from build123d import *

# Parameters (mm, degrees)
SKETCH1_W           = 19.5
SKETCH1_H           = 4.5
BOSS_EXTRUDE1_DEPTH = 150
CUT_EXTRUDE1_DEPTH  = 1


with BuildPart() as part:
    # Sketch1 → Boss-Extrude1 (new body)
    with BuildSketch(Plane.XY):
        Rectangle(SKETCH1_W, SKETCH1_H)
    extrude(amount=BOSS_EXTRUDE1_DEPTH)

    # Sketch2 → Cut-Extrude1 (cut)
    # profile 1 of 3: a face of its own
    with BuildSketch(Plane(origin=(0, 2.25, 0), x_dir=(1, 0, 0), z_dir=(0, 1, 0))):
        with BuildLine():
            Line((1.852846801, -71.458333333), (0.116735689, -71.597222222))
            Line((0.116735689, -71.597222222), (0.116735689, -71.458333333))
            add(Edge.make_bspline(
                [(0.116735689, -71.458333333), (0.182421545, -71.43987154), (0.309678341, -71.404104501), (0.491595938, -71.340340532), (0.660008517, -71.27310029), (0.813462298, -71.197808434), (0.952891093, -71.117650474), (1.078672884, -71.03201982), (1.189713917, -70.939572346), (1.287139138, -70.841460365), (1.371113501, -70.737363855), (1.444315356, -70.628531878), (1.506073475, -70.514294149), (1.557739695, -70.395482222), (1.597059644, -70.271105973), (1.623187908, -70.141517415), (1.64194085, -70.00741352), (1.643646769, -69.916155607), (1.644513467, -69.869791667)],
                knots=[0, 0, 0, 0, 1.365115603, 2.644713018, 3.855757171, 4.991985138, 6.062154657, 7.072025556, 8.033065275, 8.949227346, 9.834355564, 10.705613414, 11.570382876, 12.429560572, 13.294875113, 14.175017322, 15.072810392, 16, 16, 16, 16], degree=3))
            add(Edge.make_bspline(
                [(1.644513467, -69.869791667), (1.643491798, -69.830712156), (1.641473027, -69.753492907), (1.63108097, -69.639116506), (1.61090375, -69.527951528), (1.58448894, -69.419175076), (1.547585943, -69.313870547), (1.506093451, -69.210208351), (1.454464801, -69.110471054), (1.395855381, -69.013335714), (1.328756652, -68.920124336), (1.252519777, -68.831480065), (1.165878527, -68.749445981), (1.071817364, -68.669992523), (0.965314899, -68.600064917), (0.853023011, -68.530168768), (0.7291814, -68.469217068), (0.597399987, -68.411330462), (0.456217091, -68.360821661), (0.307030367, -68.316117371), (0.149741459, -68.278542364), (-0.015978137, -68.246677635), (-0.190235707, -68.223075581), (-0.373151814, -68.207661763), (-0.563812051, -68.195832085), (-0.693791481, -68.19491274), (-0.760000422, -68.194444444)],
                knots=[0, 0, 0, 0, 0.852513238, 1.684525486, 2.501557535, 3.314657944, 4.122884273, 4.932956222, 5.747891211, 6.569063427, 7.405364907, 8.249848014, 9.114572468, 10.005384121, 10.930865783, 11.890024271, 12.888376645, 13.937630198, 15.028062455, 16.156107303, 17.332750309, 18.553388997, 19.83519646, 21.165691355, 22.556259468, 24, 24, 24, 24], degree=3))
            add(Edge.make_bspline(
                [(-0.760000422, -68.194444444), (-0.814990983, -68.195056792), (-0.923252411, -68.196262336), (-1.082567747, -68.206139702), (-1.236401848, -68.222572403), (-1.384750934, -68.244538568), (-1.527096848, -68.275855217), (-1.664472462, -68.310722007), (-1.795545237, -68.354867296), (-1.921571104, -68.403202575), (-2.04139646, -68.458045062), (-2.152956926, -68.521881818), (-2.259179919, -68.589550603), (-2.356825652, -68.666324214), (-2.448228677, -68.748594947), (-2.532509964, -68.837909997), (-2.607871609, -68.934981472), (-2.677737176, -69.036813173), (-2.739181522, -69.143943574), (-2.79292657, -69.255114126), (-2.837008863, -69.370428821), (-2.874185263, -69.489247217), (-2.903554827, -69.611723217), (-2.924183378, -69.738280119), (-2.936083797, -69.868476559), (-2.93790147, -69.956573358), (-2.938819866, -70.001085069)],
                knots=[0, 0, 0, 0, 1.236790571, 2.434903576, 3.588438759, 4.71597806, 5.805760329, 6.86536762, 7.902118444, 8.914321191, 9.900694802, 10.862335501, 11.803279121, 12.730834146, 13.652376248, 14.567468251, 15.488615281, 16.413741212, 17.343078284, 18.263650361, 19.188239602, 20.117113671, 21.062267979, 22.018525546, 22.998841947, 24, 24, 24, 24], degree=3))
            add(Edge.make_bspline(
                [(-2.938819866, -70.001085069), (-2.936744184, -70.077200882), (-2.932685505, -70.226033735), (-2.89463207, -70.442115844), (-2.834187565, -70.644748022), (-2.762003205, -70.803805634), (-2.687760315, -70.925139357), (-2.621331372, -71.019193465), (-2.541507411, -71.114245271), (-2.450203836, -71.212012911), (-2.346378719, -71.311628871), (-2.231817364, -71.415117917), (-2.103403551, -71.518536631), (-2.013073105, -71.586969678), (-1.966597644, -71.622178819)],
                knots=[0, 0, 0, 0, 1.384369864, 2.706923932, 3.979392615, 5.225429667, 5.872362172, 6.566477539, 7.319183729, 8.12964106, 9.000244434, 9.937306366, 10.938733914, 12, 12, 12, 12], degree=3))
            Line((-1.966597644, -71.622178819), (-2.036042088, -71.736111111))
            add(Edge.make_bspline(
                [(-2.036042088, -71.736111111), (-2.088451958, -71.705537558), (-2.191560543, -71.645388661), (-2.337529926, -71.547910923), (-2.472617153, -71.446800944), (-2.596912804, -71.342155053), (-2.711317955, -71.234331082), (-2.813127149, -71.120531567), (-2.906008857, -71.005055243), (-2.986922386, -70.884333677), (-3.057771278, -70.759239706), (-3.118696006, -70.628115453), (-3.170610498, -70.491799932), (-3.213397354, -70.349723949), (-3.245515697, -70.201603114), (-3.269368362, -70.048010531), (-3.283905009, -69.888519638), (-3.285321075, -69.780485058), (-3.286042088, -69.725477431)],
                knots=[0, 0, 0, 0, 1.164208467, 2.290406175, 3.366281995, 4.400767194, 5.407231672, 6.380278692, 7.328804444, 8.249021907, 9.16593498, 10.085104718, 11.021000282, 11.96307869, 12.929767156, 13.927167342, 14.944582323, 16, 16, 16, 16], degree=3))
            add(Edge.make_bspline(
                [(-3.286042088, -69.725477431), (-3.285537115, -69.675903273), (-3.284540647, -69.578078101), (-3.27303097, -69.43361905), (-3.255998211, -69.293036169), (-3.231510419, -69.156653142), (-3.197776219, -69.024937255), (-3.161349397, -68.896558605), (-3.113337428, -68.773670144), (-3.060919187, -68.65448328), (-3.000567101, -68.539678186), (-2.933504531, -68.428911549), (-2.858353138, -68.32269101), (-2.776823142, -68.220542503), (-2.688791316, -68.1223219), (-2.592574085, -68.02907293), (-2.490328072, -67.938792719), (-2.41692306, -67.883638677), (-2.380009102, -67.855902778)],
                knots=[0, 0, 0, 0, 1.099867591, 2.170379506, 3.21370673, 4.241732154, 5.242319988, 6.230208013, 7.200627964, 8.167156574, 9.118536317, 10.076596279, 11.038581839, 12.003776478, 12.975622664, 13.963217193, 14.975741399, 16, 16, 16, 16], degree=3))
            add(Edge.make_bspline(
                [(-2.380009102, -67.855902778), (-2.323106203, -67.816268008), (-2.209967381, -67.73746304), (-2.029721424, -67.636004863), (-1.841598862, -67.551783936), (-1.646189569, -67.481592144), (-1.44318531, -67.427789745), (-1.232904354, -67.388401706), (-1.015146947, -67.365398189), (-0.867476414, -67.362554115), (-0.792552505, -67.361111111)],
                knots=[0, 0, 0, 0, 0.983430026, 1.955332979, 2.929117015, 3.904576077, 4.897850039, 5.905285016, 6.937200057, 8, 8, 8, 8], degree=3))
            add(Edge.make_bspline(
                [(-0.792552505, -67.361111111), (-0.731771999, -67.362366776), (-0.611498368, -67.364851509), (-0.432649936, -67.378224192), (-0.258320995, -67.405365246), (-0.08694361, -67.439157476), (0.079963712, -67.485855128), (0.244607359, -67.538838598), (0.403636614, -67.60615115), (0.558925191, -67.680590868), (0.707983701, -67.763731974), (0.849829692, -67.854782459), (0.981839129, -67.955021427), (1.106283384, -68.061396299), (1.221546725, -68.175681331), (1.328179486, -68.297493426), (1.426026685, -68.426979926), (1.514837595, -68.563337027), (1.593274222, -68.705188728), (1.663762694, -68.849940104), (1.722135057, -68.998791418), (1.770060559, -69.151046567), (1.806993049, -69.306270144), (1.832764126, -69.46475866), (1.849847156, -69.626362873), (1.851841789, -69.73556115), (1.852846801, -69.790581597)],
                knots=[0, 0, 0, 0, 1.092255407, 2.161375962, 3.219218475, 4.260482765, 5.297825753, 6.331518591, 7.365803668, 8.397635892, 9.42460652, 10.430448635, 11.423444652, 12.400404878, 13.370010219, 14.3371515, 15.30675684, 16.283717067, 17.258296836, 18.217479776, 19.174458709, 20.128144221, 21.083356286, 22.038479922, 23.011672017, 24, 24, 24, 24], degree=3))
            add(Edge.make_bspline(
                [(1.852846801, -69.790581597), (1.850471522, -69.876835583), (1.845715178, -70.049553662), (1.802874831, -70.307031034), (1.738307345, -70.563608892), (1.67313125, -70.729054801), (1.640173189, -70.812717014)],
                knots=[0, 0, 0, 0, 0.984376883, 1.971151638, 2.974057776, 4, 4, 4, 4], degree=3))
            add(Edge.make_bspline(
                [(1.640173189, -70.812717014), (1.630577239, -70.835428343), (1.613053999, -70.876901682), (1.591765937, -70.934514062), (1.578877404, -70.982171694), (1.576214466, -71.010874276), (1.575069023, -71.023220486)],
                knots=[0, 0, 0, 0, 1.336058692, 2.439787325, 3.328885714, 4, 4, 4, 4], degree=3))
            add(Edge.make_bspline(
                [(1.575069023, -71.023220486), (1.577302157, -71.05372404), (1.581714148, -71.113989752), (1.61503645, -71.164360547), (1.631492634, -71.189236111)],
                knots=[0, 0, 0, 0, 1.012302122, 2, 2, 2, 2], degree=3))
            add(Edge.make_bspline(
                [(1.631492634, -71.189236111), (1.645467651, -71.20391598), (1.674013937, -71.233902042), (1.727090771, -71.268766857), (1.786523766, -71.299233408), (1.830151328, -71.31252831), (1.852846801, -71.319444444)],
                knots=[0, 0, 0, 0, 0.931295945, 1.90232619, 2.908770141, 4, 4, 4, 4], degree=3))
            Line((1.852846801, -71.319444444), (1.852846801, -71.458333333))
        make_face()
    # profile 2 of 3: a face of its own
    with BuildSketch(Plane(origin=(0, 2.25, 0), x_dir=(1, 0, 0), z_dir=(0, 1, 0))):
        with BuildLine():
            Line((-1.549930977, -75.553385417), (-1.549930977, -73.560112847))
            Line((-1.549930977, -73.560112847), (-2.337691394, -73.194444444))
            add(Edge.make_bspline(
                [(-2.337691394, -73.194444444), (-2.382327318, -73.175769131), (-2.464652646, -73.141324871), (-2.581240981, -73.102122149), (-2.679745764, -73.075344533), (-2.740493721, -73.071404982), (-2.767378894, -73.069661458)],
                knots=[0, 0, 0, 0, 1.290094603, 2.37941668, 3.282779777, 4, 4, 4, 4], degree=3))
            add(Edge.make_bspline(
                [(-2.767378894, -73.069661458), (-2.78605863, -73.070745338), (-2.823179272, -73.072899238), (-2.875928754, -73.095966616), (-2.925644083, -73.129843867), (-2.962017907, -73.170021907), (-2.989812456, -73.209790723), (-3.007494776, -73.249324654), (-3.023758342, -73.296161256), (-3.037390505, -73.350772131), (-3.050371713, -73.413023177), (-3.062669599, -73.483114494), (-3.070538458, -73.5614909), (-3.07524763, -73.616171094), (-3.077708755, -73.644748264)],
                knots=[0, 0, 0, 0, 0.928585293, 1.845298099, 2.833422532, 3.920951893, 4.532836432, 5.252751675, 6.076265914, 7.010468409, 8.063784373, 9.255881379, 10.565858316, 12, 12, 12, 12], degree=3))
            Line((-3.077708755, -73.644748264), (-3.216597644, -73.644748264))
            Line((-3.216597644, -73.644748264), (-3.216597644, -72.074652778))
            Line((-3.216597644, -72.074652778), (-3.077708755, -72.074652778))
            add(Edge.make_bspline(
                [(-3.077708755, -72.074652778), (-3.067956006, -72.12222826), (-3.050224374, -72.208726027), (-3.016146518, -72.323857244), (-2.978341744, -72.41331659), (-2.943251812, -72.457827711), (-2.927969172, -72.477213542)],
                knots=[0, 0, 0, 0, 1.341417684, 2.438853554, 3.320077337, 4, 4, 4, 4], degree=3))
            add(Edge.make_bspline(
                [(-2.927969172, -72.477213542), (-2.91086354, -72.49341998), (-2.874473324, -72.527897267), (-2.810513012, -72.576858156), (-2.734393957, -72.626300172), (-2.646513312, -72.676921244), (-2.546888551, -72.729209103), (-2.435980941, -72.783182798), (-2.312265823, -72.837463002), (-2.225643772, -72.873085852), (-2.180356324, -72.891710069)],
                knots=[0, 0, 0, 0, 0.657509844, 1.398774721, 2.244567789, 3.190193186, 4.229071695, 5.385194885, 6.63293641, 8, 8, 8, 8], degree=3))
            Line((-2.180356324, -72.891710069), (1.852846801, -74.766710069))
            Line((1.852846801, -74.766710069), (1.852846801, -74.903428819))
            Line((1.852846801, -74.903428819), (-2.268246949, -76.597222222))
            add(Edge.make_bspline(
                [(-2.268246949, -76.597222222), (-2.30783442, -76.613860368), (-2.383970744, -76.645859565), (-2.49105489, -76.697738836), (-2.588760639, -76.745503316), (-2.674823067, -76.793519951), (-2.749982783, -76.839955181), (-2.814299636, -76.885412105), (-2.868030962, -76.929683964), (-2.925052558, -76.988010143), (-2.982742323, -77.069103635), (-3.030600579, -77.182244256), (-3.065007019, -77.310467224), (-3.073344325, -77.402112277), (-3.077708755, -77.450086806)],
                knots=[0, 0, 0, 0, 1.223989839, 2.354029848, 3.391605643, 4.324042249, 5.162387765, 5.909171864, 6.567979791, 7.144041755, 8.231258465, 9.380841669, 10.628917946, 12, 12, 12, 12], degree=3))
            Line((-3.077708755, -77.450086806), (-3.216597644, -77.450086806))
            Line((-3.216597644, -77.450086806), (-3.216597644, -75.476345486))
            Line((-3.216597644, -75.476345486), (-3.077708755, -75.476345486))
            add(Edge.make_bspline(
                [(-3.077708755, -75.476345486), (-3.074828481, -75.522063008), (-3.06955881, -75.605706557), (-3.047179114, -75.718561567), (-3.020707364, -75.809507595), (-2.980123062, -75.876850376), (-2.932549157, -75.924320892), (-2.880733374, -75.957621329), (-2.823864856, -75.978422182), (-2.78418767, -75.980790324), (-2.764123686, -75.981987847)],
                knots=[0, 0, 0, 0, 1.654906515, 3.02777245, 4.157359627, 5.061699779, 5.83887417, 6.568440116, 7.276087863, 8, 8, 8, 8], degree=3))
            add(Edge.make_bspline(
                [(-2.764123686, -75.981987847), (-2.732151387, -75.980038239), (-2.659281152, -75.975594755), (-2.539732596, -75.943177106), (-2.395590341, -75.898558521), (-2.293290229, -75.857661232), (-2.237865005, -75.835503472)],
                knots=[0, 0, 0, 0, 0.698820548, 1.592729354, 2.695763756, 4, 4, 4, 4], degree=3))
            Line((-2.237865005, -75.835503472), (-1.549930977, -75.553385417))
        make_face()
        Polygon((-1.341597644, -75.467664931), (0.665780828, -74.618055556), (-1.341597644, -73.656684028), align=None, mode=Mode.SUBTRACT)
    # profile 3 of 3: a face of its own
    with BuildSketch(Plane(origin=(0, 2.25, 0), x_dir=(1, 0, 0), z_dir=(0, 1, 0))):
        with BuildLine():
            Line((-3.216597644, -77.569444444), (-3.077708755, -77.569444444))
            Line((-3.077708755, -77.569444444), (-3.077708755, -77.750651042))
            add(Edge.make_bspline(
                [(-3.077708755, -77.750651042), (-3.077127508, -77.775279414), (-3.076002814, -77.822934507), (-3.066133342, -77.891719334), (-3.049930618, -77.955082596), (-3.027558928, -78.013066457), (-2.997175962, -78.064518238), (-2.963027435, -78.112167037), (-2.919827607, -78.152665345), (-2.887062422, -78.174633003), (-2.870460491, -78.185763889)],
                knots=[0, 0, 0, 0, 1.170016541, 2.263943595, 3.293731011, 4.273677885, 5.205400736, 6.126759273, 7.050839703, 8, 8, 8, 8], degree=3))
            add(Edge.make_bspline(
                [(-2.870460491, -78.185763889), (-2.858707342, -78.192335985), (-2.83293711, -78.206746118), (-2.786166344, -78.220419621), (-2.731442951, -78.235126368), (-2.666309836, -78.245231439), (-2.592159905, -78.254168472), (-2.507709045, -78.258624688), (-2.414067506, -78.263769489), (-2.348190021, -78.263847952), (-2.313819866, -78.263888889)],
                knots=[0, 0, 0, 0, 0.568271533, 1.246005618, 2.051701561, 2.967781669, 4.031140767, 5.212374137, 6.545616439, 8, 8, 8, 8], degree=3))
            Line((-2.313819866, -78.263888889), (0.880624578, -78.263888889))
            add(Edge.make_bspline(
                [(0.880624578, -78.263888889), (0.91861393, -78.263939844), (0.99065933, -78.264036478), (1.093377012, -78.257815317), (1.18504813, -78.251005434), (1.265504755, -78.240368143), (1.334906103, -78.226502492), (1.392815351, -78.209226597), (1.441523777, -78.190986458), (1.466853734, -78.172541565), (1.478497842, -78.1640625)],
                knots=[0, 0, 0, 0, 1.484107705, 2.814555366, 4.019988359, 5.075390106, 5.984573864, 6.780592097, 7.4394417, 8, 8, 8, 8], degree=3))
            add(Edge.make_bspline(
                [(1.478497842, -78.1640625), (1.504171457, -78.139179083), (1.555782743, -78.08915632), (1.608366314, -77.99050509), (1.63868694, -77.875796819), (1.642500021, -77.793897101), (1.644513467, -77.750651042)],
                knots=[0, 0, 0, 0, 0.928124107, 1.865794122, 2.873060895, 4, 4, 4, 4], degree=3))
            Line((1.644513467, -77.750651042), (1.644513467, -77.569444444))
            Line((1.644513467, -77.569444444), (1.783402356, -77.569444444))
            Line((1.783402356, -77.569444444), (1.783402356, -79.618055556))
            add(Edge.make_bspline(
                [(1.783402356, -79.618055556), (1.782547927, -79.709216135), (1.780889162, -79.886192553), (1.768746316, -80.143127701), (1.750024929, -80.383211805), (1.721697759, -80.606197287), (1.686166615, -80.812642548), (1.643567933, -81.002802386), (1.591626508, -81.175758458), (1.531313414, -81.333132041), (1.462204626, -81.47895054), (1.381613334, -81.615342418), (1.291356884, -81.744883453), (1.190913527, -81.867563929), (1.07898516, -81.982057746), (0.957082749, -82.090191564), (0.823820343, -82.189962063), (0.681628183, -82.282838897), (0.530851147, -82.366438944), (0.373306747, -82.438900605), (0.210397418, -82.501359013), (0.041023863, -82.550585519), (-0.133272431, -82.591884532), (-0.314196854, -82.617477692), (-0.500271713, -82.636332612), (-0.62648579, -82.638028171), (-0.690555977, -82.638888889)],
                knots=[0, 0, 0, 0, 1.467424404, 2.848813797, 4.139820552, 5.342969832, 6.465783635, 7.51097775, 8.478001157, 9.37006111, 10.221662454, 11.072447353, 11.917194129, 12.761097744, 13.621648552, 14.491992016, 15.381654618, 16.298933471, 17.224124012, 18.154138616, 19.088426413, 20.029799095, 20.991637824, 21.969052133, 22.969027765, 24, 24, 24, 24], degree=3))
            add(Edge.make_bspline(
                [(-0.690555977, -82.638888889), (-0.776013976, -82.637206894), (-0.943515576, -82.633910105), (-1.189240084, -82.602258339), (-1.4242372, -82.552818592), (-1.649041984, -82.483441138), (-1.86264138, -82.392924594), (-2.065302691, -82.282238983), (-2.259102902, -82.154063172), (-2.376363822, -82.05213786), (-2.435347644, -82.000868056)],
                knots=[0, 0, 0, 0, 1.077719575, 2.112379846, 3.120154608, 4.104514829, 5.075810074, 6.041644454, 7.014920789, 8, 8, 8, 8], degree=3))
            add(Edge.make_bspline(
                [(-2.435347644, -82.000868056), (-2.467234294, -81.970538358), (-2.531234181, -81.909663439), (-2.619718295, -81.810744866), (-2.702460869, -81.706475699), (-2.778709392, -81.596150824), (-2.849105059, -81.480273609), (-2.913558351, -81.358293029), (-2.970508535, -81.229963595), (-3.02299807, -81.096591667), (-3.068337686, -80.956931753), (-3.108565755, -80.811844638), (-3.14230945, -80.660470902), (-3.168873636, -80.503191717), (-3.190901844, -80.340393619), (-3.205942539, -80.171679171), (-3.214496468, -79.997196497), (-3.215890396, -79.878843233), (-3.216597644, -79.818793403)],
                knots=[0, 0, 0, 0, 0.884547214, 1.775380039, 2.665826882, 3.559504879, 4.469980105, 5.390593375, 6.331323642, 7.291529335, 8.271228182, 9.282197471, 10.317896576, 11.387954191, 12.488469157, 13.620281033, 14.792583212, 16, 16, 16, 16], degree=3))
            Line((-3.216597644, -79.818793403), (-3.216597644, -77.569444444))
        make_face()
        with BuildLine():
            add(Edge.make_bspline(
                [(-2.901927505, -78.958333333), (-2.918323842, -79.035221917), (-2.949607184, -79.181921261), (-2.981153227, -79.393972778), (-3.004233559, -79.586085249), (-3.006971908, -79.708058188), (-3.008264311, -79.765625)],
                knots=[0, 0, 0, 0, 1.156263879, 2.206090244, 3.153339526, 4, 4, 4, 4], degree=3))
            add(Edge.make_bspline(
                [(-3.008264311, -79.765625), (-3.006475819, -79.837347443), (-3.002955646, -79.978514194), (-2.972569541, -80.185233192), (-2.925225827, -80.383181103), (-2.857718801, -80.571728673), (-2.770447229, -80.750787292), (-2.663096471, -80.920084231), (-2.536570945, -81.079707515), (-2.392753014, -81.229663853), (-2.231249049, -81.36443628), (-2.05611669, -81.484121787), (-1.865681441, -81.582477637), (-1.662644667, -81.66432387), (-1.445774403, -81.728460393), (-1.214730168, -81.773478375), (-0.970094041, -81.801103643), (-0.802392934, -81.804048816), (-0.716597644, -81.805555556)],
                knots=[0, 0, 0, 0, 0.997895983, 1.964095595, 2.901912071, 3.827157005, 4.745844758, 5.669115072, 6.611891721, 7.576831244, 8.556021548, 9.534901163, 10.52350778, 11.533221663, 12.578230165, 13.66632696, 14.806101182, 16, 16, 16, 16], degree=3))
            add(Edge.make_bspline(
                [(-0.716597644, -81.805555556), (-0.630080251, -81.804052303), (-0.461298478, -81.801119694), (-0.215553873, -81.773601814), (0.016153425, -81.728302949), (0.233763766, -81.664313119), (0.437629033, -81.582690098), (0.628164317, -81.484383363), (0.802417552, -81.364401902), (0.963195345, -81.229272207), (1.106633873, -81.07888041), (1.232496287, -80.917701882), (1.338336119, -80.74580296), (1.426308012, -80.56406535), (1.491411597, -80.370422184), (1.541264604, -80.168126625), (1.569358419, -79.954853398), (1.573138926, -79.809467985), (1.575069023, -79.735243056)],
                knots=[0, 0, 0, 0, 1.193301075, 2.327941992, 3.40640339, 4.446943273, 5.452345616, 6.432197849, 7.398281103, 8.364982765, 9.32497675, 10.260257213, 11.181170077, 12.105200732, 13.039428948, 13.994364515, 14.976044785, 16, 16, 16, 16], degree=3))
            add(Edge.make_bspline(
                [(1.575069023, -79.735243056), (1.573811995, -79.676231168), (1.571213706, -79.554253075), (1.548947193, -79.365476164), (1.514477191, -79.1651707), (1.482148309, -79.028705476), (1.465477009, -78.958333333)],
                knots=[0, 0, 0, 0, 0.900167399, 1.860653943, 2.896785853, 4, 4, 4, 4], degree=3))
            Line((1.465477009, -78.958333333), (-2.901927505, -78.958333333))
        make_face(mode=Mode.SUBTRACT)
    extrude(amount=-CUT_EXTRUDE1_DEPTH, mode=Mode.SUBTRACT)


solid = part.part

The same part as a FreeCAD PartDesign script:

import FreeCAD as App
import Part
import Sketcher

V = App.Vector
Q = App.Units.Quantity


def add_polygon(sketch, points):
    """Adds a closed chain of lines whose ends are joined by coincident constraints."""
    first, n = sketch.GeometryCount, len(points)
    for a, b in zip(points, points[1:] + points[:1]):
        sketch.addGeometry(Part.LineSegment(App.Vector(*a, 0), App.Vector(*b, 0)), False)
    for i in range(n):
        sketch.addConstraint(Sketcher.Constraint("Coincident", first + i, 2, first + (i + 1) % n, 1))

doc = App.newDocument("Part")
body = doc.addObject("PartDesign::Body", "Body")

# Sketch on XY plane
sketch1 = doc.addObject("Sketcher::SketchObject", "Sketch")
body.addObject(sketch1)
sketch1.AttachmentSupport = (doc.XY_Plane, [""])
sketch1.MapMode = "FlatFace"
add_polygon(sketch1, [(-9.8, 2.2), (-9.8, -2.2), (9.8, -2.2), (9.8, 2.2)])  # lines 0-3
sketch1.addConstraint([
    Sketcher.Constraint("Vertical", 0),
    Sketcher.Constraint("Horizontal", 1),
    Sketcher.Constraint("Vertical", 2),
    Sketcher.Constraint("Horizontal", 3),
    Sketcher.Constraint("Symmetric", 0, 2, 2, 2, -1, 1),
    Sketcher.Constraint("DistanceX", 1, 1, 1, 2, Q("19.5 mm")),
    Sketcher.Constraint("DistanceY", 0, 2, 0, 1, Q("4.5 mm")),
])
pad1 = doc.addObject("PartDesign::Pad", "Pad")
body.addObject(pad1)
pad1.Profile = sketch1
pad1.Length = 150

# Sketch on XZ plane
sketch2 = doc.addObject("Sketcher::SketchObject", "Sketch001")
body.addObject(sketch2)
sketch2.AttachmentSupport = (doc.XZ_Plane, [""])
sketch2.MapMode = "FlatFace"
sketch2.AttachmentOffset = App.Placement(V(0, 0, -2.25), App.Rotation())
sketch2.addGeometry(Part.LineSegment(V(0.116736, 71.597222, 0), V(1.852847, 71.458333, 0)), False)  # 0
sketch2.addGeometry(Part.LineSegment(V(1.852847, 71.458333, 0), V(1.852847, 71.319444, 0)), False)  # 1
sketch2.addGeometry(Part.BSplineCurve([V(1.631493, 71.189236, 0), V(1.645468, 71.203916, 0), V(1.674014, 71.233902, 0), V(1.727091, 71.268767, 0), V(1.786524, 71.299233, 0), V(1.830151, 71.312528, 0), V(1.852847, 71.319444, 0)], [4, 1, 1, 1, 4], [0, 0.931295945, 1.90232619, 2.908770141, 4], False, 3, [1, 1, 1, 1, 1, 1, 1], False), False)  # 2
sketch2.addGeometry(Part.BSplineCurve([V(1.575069, 71.02322, 0), V(1.577302, 71.053724, 0), V(1.581714, 71.11399, 0), V(1.615036, 71.164361, 0), V(1.631493, 71.189236, 0)], [4, 1, 4], [0, 1.012302122, 2], False, 3, [1, 1, 1, 1, 1], False), False)  # 3
sketch2.addGeometry(Part.BSplineCurve([V(1.640173, 70.812717, 0), V(1.630577, 70.835428, 0), V(1.613054, 70.876902, 0), V(1.591766, 70.934514, 0), V(1.578877, 70.982172, 0), V(1.576214, 71.010874, 0), V(1.575069, 71.02322, 0)], [4, 1, 1, 1, 4], [0, 1.336058692, 2.439787325, 3.328885714, 4], False, 3, [1, 1, 1, 1, 1, 1, 1], False), False)  # 4
sketch2.addGeometry(Part.BSplineCurve([V(1.852847, 69.790582, 0), V(1.850472, 69.876836, 0), V(1.845715, 70.049554, 0), V(1.802875, 70.307031, 0), V(1.738307, 70.563609, 0), V(1.673131, 70.729055, 0), V(1.640173, 70.812717, 0)], [4, 1, 1, 1, 4], [0, 0.984376883, 1.971151638, 2.974057776, 4], False, 3, [1, 1, 1, 1, 1, 1, 1], False), False)  # 5
sketch2.addGeometry(Part.BSplineCurve([V(-0.792553, 67.361111, 0), V(-0.731772, 67.362367, 0), V(-0.611498, 67.364852, 0), V(-0.43265, 67.378224, 0), V(-0.258321, 67.405365, 0), V(-0.086944, 67.439157, 0), V(0.079964, 67.485855, 0), V(0.244607, 67.538839, 0), V(0.403637, 67.606151, 0), V(0.558925, 67.680591, 0), V(0.707984, 67.763732, 0), V(0.84983, 67.854782, 0), V(0.981839, 67.955021, 0), V(1.106283, 68.061396, 0), V(1.221547, 68.175681, 0), V(1.328179, 68.297493, 0), V(1.426027, 68.42698, 0), V(1.514838, 68.563337, 0), V(1.593274, 68.705189, 0), V(1.663763, 68.84994, 0), V(1.722135, 68.998791, 0), V(1.770061, 69.151047, 0), V(1.806993, 69.30627, 0), V(1.832764, 69.464759, 0), V(1.849847, 69.626363, 0), V(1.851842, 69.735561, 0), V(1.852847, 69.790582, 0)], [4, 1, 1, 1, 1, 1, 1, 1, 1, 1, 1, 1, 1, 1, 1, 1, 1, 1, 1, 1, 1, 1, 1, 1, 4], [0, 1.092255407, 2.161375962, 3.219218475, 4.260482765, 5.297825753, 6.331518591, 7.365803668, 8.397635892, 9.42460652, 10.430448635, 11.423444652, 12.400404878, 13.370010219, 14.3371515, 15.30675684, 16.283717067, 17.258296836, 18.217479776, 19.174458709, 20.128144221, 21.083356286, 22.038479922, 23.011672017, 24], False, 3, [1, 1, 1, 1, 1, 1, 1, 1, 1, 1, 1, 1, 1, 1, 1, 1, 1, 1, 1, 1, 1, 1, 1, 1, 1, 1, 1], False), False)  # 6
sketch2.addGeometry(Part.BSplineCurve([V(-2.380009, 67.855903, 0), V(-2.323106, 67.816268, 0), V(-2.209967, 67.737463, 0), V(-2.029721, 67.636005, 0), V(-1.841599, 67.551784, 0), V(-1.64619, 67.481592, 0), V(-1.443185, 67.42779, 0), V(-1.232904, 67.388402, 0), V(-1.015147, 67.365398, 0), V(-0.867476, 67.362554, 0), V(-0.792553, 67.361111, 0)], [4, 1, 1, 1, 1, 1, 1, 1, 4], [0, 0.983430026, 1.955332979, 2.929117015, 3.904576077, 4.897850039, 5.905285016, 6.937200057, 8], False, 3, [1, 1, 1, 1, 1, 1, 1, 1, 1, 1, 1], False), False)  # 7
sketch2.addGeometry(Part.BSplineCurve([V(-3.286042, 69.725477, 0), V(-3.285537, 69.675903, 0), V(-3.284541, 69.578078, 0), V(-3.273031, 69.433619, 0), V(-3.255998, 69.293036, 0), V(-3.23151, 69.156653, 0), V(-3.197776, 69.024937, 0), V(-3.161349, 68.896559, 0), V(-3.113337, 68.77367, 0), V(-3.060919, 68.654483, 0), V(-3.000567, 68.539678, 0), V(-2.933505, 68.428912, 0), V(-2.858353, 68.322691, 0), V(-2.776823, 68.220543, 0), V(-2.688791, 68.122322, 0), V(-2.592574, 68.029073, 0), V(-2.490328, 67.938793, 0), V(-2.416923, 67.883639, 0), V(-2.380009, 67.855903, 0)], [4, 1, 1, 1, 1, 1, 1, 1, 1, 1, 1, 1, 1, 1, 1, 1, 4], [0, 1.099867591, 2.170379506, 3.21370673, 4.241732154, 5.242319988, 6.230208013, 7.200627964, 8.167156574, 9.118536317, 10.076596279, 11.038581839, 12.003776478, 12.975622664, 13.963217193, 14.975741399, 16], False, 3, [1, 1, 1, 1, 1, 1, 1, 1, 1, 1, 1, 1, 1, 1, 1, 1, 1, 1, 1], False), False)  # 8
sketch2.addGeometry(Part.BSplineCurve([V(-2.036042, 71.736111, 0), V(-2.088452, 71.705538, 0), V(-2.191561, 71.645389, 0), V(-2.33753, 71.547911, 0), V(-2.472617, 71.446801, 0), V(-2.596913, 71.342155, 0), V(-2.711318, 71.234331, 0), V(-2.813127, 71.120532, 0), V(-2.906009, 71.005055, 0), V(-2.986922, 70.884334, 0), V(-3.057771, 70.75924, 0), V(-3.118696, 70.628115, 0), V(-3.17061, 70.4918, 0), V(-3.213397, 70.349724, 0), V(-3.245516, 70.201603, 0), V(-3.269368, 70.048011, 0), V(-3.283905, 69.88852, 0), V(-3.285321, 69.780485, 0), V(-3.286042, 69.725477, 0)], [4, 1, 1, 1, 1, 1, 1, 1, 1, 1, 1, 1, 1, 1, 1, 1, 4], [0, 1.164208467, 2.290406175, 3.366281995, 4.400767194, 5.407231672, 6.380278692, 7.328804444, 8.249021907, 9.16593498, 10.085104718, 11.021000282, 11.96307869, 12.929767156, 13.927167342, 14.944582323, 16], False, 3, [1, 1, 1, 1, 1, 1, 1, 1, 1, 1, 1, 1, 1, 1, 1, 1, 1, 1, 1], False), False)  # 9
sketch2.addGeometry(Part.LineSegment(V(-2.036042, 71.736111, 0), V(-1.966598, 71.622179, 0)), False)  # 10
sketch2.addGeometry(Part.BSplineCurve([V(-2.93882, 70.001085, 0), V(-2.936744, 70.077201, 0), V(-2.932686, 70.226034, 0), V(-2.894632, 70.442116, 0), V(-2.834188, 70.644748, 0), V(-2.762003, 70.803806, 0), V(-2.68776, 70.925139, 0), V(-2.621331, 71.019193, 0), V(-2.541507, 71.114245, 0), V(-2.450204, 71.212013, 0), V(-2.346379, 71.311629, 0), V(-2.231817, 71.415118, 0), V(-2.103404, 71.518537, 0), V(-2.013073, 71.58697, 0), V(-1.966598, 71.622179, 0)], [4, 1, 1, 1, 1, 1, 1, 1, 1, 1, 1, 1, 4], [0, 1.384369864, 2.706923932, 3.979392615, 5.225429667, 5.872362172, 6.566477539, 7.319183729, 8.12964106, 9.000244434, 9.937306366, 10.938733914, 12], False, 3, [1, 1, 1, 1, 1, 1, 1, 1, 1, 1, 1, 1, 1, 1, 1], False), False)  # 11
sketch2.addGeometry(Part.BSplineCurve([V(-0.76, 68.194444, 0), V(-0.814991, 68.195057, 0), V(-0.923252, 68.196262, 0), V(-1.082568, 68.20614, 0), V(-1.236402, 68.222572, 0), V(-1.384751, 68.244539, 0), V(-1.527097, 68.275855, 0), V(-1.664472, 68.310722, 0), V(-1.795545, 68.354867, 0), V(-1.921571, 68.403203, 0), V(-2.041396, 68.458045, 0), V(-2.152957, 68.521882, 0), V(-2.25918, 68.589551, 0), V(-2.356826, 68.666324, 0), V(-2.448229, 68.748595, 0), V(-2.53251, 68.83791, 0), V(-2.607872, 68.934981, 0), V(-2.677737, 69.036813, 0), V(-2.739182, 69.143944, 0), V(-2.792927, 69.255114, 0), V(-2.837009, 69.370429, 0), V(-2.874185, 69.489247, 0), V(-2.903555, 69.611723, 0), V(-2.924183, 69.73828, 0), V(-2.936084, 69.868477, 0), V(-2.937901, 69.956573, 0), V(-2.93882, 70.001085, 0)], [4, 1, 1, 1, 1, 1, 1, 1, 1, 1, 1, 1, 1, 1, 1, 1, 1, 1, 1, 1, 1, 1, 1, 1, 4], [0, 1.236790571, 2.434903576, 3.588438759, 4.71597806, 5.805760329, 6.86536762, 7.902118444, 8.914321191, 9.900694802, 10.862335501, 11.803279121, 12.730834146, 13.652376248, 14.567468251, 15.488615281, 16.413741212, 17.343078284, 18.263650361, 19.188239602, 20.117113671, 21.062267979, 22.018525546, 22.998841947, 24], False, 3, [1, 1, 1, 1, 1, 1, 1, 1, 1, 1, 1, 1, 1, 1, 1, 1, 1, 1, 1, 1, 1, 1, 1, 1, 1, 1, 1], False), False)  # 12
sketch2.addGeometry(Part.BSplineCurve([V(1.644513, 69.869792, 0), V(1.643492, 69.830712, 0), V(1.641473, 69.753493, 0), V(1.631081, 69.639117, 0), V(1.610904, 69.527952, 0), V(1.584489, 69.419175, 0), V(1.547586, 69.313871, 0), V(1.506093, 69.210208, 0), V(1.454465, 69.110471, 0), V(1.395855, 69.013336, 0), V(1.328757, 68.920124, 0), V(1.25252, 68.83148, 0), V(1.165879, 68.749446, 0), V(1.071817, 68.669993, 0), V(0.965315, 68.600065, 0), V(0.853023, 68.530169, 0), V(0.729181, 68.469217, 0), V(0.5974, 68.41133, 0), V(0.456217, 68.360822, 0), V(0.30703, 68.316117, 0), V(0.149741, 68.278542, 0), V(-0.015978, 68.246678, 0), V(-0.190236, 68.223076, 0), V(-0.373152, 68.207662, 0), V(-0.563812, 68.195832, 0), V(-0.693791, 68.194913, 0), V(-0.76, 68.194444, 0)], [4, 1, 1, 1, 1, 1, 1, 1, 1, 1, 1, 1, 1, 1, 1, 1, 1, 1, 1, 1, 1, 1, 1, 1, 4], [0, 0.852513238, 1.684525486, 2.501557535, 3.314657944, 4.122884273, 4.932956222, 5.747891211, 6.569063427, 7.405364907, 8.249848014, 9.114572468, 10.005384121, 10.930865783, 11.890024271, 12.888376645, 13.937630198, 15.028062455, 16.156107303, 17.332750309, 18.553388997, 19.83519646, 21.165691355, 22.556259468, 24], False, 3, [1, 1, 1, 1, 1, 1, 1, 1, 1, 1, 1, 1, 1, 1, 1, 1, 1, 1, 1, 1, 1, 1, 1, 1, 1, 1, 1], False), False)  # 13
sketch2.addGeometry(Part.BSplineCurve([V(0.116736, 71.458333, 0), V(0.182422, 71.439872, 0), V(0.309678, 71.404105, 0), V(0.491596, 71.340341, 0), V(0.660009, 71.2731, 0), V(0.813462, 71.197808, 0), V(0.952891, 71.11765, 0), V(1.078673, 71.03202, 0), V(1.189714, 70.939572, 0), V(1.287139, 70.84146, 0), V(1.371114, 70.737364, 0), V(1.444315, 70.628532, 0), V(1.506073, 70.514294, 0), V(1.55774, 70.395482, 0), V(1.59706, 70.271106, 0), V(1.623188, 70.141517, 0), V(1.641941, 70.007414, 0), V(1.643647, 69.916156, 0), V(1.644513, 69.869792, 0)], [4, 1, 1, 1, 1, 1, 1, 1, 1, 1, 1, 1, 1, 1, 1, 1, 4], [0, 1.365115603, 2.644713018, 3.855757171, 4.991985138, 6.062154657, 7.072025556, 8.033065275, 8.949227346, 9.834355564, 10.705613414, 11.570382876, 12.429560572, 13.294875113, 14.175017322, 15.072810392, 16], False, 3, [1, 1, 1, 1, 1, 1, 1, 1, 1, 1, 1, 1, 1, 1, 1, 1, 1, 1, 1], False), False)  # 14
sketch2.addGeometry(Part.LineSegment(V(0.116736, 71.458333, 0), V(0.116736, 71.597222, 0)), False)  # 15
sketch2.addGeometry(Part.LineSegment(V(-1.549931, 73.560113, 0), V(-1.549931, 75.553385, 0)), False)  # 16
sketch2.addGeometry(Part.LineSegment(V(-1.549931, 75.553385, 0), V(-2.237865, 75.835503, 0)), False)  # 17
sketch2.addGeometry(Part.BSplineCurve([V(-2.764124, 75.981988, 0), V(-2.732151, 75.980038, 0), V(-2.659281, 75.975595, 0), V(-2.539733, 75.943177, 0), V(-2.39559, 75.898559, 0), V(-2.29329, 75.857661, 0), V(-2.237865, 75.835503, 0)], [4, 1, 1, 1, 4], [0, 0.698820548, 1.592729354, 2.695763756, 4], False, 3, [1, 1, 1, 1, 1, 1, 1], False), False)  # 18
sketch2.addGeometry(Part.BSplineCurve([V(-3.077709, 75.476345, 0), V(-3.074828, 75.522063, 0), V(-3.069559, 75.605707, 0), V(-3.047179, 75.718562, 0), V(-3.020707, 75.809508, 0), V(-2.980123, 75.87685, 0), V(-2.932549, 75.924321, 0), V(-2.880733, 75.957621, 0), V(-2.823865, 75.978422, 0), V(-2.784188, 75.98079, 0), V(-2.764124, 75.981988, 0)], [4, 1, 1, 1, 1, 1, 1, 1, 4], [0, 1.654906515, 3.02777245, 4.157359627, 5.061699779, 5.83887417, 6.568440116, 7.276087863, 8], False, 3, [1, 1, 1, 1, 1, 1, 1, 1, 1, 1, 1], False), False)  # 19
sketch2.addGeometry(Part.LineSegment(V(-3.077709, 75.476345, 0), V(-3.216598, 75.476345, 0)), False)  # 20
sketch2.addGeometry(Part.LineSegment(V(-3.216598, 75.476345, 0), V(-3.216598, 77.450087, 0)), False)  # 21
sketch2.addGeometry(Part.LineSegment(V(-3.216598, 77.450087, 0), V(-3.077709, 77.450087, 0)), False)  # 22
sketch2.addGeometry(Part.BSplineCurve([V(-2.268247, 76.597222, 0), V(-2.307834, 76.61386, 0), V(-2.383971, 76.64586, 0), V(-2.491055, 76.697739, 0), V(-2.588761, 76.745503, 0), V(-2.674823, 76.79352, 0), V(-2.749983, 76.839955, 0), V(-2.8143, 76.885412, 0), V(-2.868031, 76.929684, 0), V(-2.925053, 76.98801, 0), V(-2.982742, 77.069104, 0), V(-3.030601, 77.182244, 0), V(-3.065007, 77.310467, 0), V(-3.073344, 77.402112, 0), V(-3.077709, 77.450087, 0)], [4, 1, 1, 1, 1, 1, 1, 1, 1, 1, 1, 1, 4], [0, 1.223989839, 2.354029848, 3.391605643, 4.324042249, 5.162387765, 5.909171864, 6.567979791, 7.144041755, 8.231258465, 9.380841669, 10.628917946, 12], False, 3, [1, 1, 1, 1, 1, 1, 1, 1, 1, 1, 1, 1, 1, 1, 1], False), False)  # 23
sketch2.addGeometry(Part.LineSegment(V(-2.268247, 76.597222, 0), V(1.852847, 74.903429, 0)), False)  # 24
sketch2.addGeometry(Part.LineSegment(V(1.852847, 74.903429, 0), V(1.852847, 74.76671, 0)), False)  # 25
sketch2.addGeometry(Part.LineSegment(V(1.852847, 74.76671, 0), V(-2.180356, 72.89171, 0)), False)  # 26
sketch2.addGeometry(Part.BSplineCurve([V(-2.927969, 72.477214, 0), V(-2.910864, 72.49342, 0), V(-2.874473, 72.527897, 0), V(-2.810513, 72.576858, 0), V(-2.734394, 72.6263, 0), V(-2.646513, 72.676921, 0), V(-2.546889, 72.729209, 0), V(-2.435981, 72.783183, 0), V(-2.312266, 72.837463, 0), V(-2.225644, 72.873086, 0), V(-2.180356, 72.89171, 0)], [4, 1, 1, 1, 1, 1, 1, 1, 4], [0, 0.657509844, 1.398774721, 2.244567789, 3.190193186, 4.229071695, 5.385194885, 6.63293641, 8], False, 3, [1, 1, 1, 1, 1, 1, 1, 1, 1, 1, 1], False), False)  # 27
sketch2.addGeometry(Part.BSplineCurve([V(-3.077709, 72.074653, 0), V(-3.067956, 72.122228, 0), V(-3.050224, 72.208726, 0), V(-3.016147, 72.323857, 0), V(-2.978342, 72.413317, 0), V(-2.943252, 72.457828, 0), V(-2.927969, 72.477214, 0)], [4, 1, 1, 1, 4], [0, 1.341417684, 2.438853554, 3.320077337, 4], False, 3, [1, 1, 1, 1, 1, 1, 1], False), False)  # 28
sketch2.addGeometry(Part.LineSegment(V(-3.077709, 72.074653, 0), V(-3.216598, 72.074653, 0)), False)  # 29
sketch2.addGeometry(Part.LineSegment(V(-3.216598, 72.074653, 0), V(-3.216598, 73.644748, 0)), False)  # 30
sketch2.addGeometry(Part.LineSegment(V(-3.216598, 73.644748, 0), V(-3.077709, 73.644748, 0)), False)  # 31
sketch2.addGeometry(Part.BSplineCurve([V(-2.767379, 73.069661, 0), V(-2.786059, 73.070745, 0), V(-2.823179, 73.072899, 0), V(-2.875929, 73.095967, 0), V(-2.925644, 73.129844, 0), V(-2.962018, 73.170022, 0), V(-2.989812, 73.209791, 0), V(-3.007495, 73.249325, 0), V(-3.023758, 73.296161, 0), V(-3.037391, 73.350772, 0), V(-3.050372, 73.413023, 0), V(-3.06267, 73.483114, 0), V(-3.070538, 73.561491, 0), V(-3.075248, 73.616171, 0), V(-3.077709, 73.644748, 0)], [4, 1, 1, 1, 1, 1, 1, 1, 1, 1, 1, 1, 4], [0, 0.928585293, 1.845298099, 2.833422532, 3.920951893, 4.532836432, 5.252751675, 6.076265914, 7.010468409, 8.063784373, 9.255881379, 10.565858316, 12], False, 3, [1, 1, 1, 1, 1, 1, 1, 1, 1, 1, 1, 1, 1, 1, 1], False), False)  # 32
sketch2.addGeometry(Part.BSplineCurve([V(-2.337691, 73.194444, 0), V(-2.382327, 73.175769, 0), V(-2.464653, 73.141325, 0), V(-2.581241, 73.102122, 0), V(-2.679746, 73.075345, 0), V(-2.740494, 73.071405, 0), V(-2.767379, 73.069661, 0)], [4, 1, 1, 1, 4], [0, 1.290094603, 2.37941668, 3.282779777, 4], False, 3, [1, 1, 1, 1, 1, 1, 1], False), False)  # 33
sketch2.addGeometry(Part.LineSegment(V(-2.337691, 73.194444, 0), V(-1.549931, 73.560113, 0)), False)  # 34
add_polygon(sketch2, [(-1.341598, 75.467665), (-1.341598, 73.656684), (0.665781, 74.618056)])  # lines 35-37
sketch2.addGeometry(Part.LineSegment(V(-3.077709, 77.569444, 0), V(-3.216598, 77.569444, 0)), False)  # 38
sketch2.addGeometry(Part.LineSegment(V(-3.216598, 77.569444, 0), V(-3.216598, 79.818793, 0)), False)  # 39
sketch2.addGeometry(Part.BSplineCurve([V(-2.435348, 82.000868, 0), V(-2.467234, 81.970538, 0), V(-2.531234, 81.909663, 0), V(-2.619718, 81.810745, 0), V(-2.702461, 81.706476, 0), V(-2.778709, 81.596151, 0), V(-2.849105, 81.480274, 0), V(-2.913558, 81.358293, 0), V(-2.970509, 81.229964, 0), V(-3.022998, 81.096592, 0), V(-3.068338, 80.956932, 0), V(-3.108566, 80.811845, 0), V(-3.142309, 80.660471, 0), V(-3.168874, 80.503192, 0), V(-3.190902, 80.340394, 0), V(-3.205943, 80.171679, 0), V(-3.214496, 79.997196, 0), V(-3.21589, 79.878843, 0), V(-3.216598, 79.818793, 0)], [4, 1, 1, 1, 1, 1, 1, 1, 1, 1, 1, 1, 1, 1, 1, 1, 4], [0, 0.884547214, 1.775380039, 2.665826882, 3.559504879, 4.469980105, 5.390593375, 6.331323642, 7.291529335, 8.271228182, 9.282197471, 10.317896576, 11.387954191, 12.488469157, 13.620281033, 14.792583212, 16], False, 3, [1, 1, 1, 1, 1, 1, 1, 1, 1, 1, 1, 1, 1, 1, 1, 1, 1, 1, 1], False), False)  # 40
sketch2.addGeometry(Part.BSplineCurve([V(-0.690556, 82.638889, 0), V(-0.776014, 82.637207, 0), V(-0.943516, 82.63391, 0), V(-1.18924, 82.602258, 0), V(-1.424237, 82.552819, 0), V(-1.649042, 82.483441, 0), V(-1.862641, 82.392925, 0), V(-2.065303, 82.282239, 0), V(-2.259103, 82.154063, 0), V(-2.376364, 82.052138, 0), V(-2.435348, 82.000868, 0)], [4, 1, 1, 1, 1, 1, 1, 1, 4], [0, 1.077719575, 2.112379846, 3.120154608, 4.104514829, 5.075810074, 6.041644454, 7.014920789, 8], False, 3, [1, 1, 1, 1, 1, 1, 1, 1, 1, 1, 1], False), False)  # 41
sketch2.addGeometry(Part.BSplineCurve([V(1.783402, 79.618056, 0), V(1.782548, 79.709216, 0), V(1.780889, 79.886193, 0), V(1.768746, 80.143128, 0), V(1.750025, 80.383212, 0), V(1.721698, 80.606197, 0), V(1.686167, 80.812643, 0), V(1.643568, 81.002802, 0), V(1.591627, 81.175758, 0), V(1.531313, 81.333132, 0), V(1.462205, 81.478951, 0), V(1.381613, 81.615342, 0), V(1.291357, 81.744883, 0), V(1.190914, 81.867564, 0), V(1.078985, 81.982058, 0), V(0.957083, 82.090192, 0), V(0.82382, 82.189962, 0), V(0.681628, 82.282839, 0), V(0.530851, 82.366439, 0), V(0.373307, 82.438901, 0), V(0.210397, 82.501359, 0), V(0.041024, 82.550586, 0), V(-0.133272, 82.591885, 0), V(-0.314197, 82.617478, 0), V(-0.500272, 82.636333, 0), V(-0.626486, 82.638028, 0), V(-0.690556, 82.638889, 0)], [4, 1, 1, 1, 1, 1, 1, 1, 1, 1, 1, 1, 1, 1, 1, 1, 1, 1, 1, 1, 1, 1, 1, 1, 4], [0, 1.467424404, 2.848813797, 4.139820552, 5.342969832, 6.465783635, 7.51097775, 8.478001157, 9.37006111, 10.221662454, 11.072447353, 11.917194129, 12.761097744, 13.621648552, 14.491992016, 15.381654618, 16.298933471, 17.224124012, 18.154138616, 19.088426413, 20.029799095, 20.991637824, 21.969052133, 22.969027765, 24], False, 3, [1, 1, 1, 1, 1, 1, 1, 1, 1, 1, 1, 1, 1, 1, 1, 1, 1, 1, 1, 1, 1, 1, 1, 1, 1, 1, 1], False), False)  # 42
sketch2.addGeometry(Part.LineSegment(V(1.783402, 79.618056, 0), V(1.783402, 77.569444, 0)), False)  # 43
sketch2.addGeometry(Part.LineSegment(V(1.783402, 77.569444, 0), V(1.644513, 77.569444, 0)), False)  # 44
sketch2.addGeometry(Part.LineSegment(V(1.644513, 77.569444, 0), V(1.644513, 77.750651, 0)), False)  # 45
sketch2.addGeometry(Part.BSplineCurve([V(1.478498, 78.164062, 0), V(1.504171, 78.139179, 0), V(1.555783, 78.089156, 0), V(1.608366, 77.990505, 0), V(1.638687, 77.875797, 0), V(1.6425, 77.793897, 0), V(1.644513, 77.750651, 0)], [4, 1, 1, 1, 4], [0, 0.928124107, 1.865794122, 2.873060895, 4], False, 3, [1, 1, 1, 1, 1, 1, 1], False), False)  # 46
sketch2.addGeometry(Part.BSplineCurve([V(0.880625, 78.263889, 0), V(0.918614, 78.26394, 0), V(0.990659, 78.264036, 0), V(1.093377, 78.257815, 0), V(1.185048, 78.251005, 0), V(1.265505, 78.240368, 0), V(1.334906, 78.226502, 0), V(1.392815, 78.209227, 0), V(1.441524, 78.190986, 0), V(1.466854, 78.172542, 0), V(1.478498, 78.164062, 0)], [4, 1, 1, 1, 1, 1, 1, 1, 4], [0, 1.484107705, 2.814555366, 4.019988359, 5.075390106, 5.984573864, 6.780592097, 7.4394417, 8], False, 3, [1, 1, 1, 1, 1, 1, 1, 1, 1, 1, 1], False), False)  # 47
sketch2.addGeometry(Part.LineSegment(V(0.880625, 78.263889, 0), V(-2.31382, 78.263889, 0)), False)  # 48
sketch2.addGeometry(Part.BSplineCurve([V(-2.87046, 78.185764, 0), V(-2.858707, 78.192336, 0), V(-2.832937, 78.206746, 0), V(-2.786166, 78.22042, 0), V(-2.731443, 78.235126, 0), V(-2.66631, 78.245231, 0), V(-2.59216, 78.254168, 0), V(-2.507709, 78.258625, 0), V(-2.414068, 78.263769, 0), V(-2.34819, 78.263848, 0), V(-2.31382, 78.263889, 0)], [4, 1, 1, 1, 1, 1, 1, 1, 4], [0, 0.568271533, 1.246005618, 2.051701561, 2.967781669, 4.031140767, 5.212374137, 6.545616439, 8], False, 3, [1, 1, 1, 1, 1, 1, 1, 1, 1, 1, 1], False), False)  # 49
sketch2.addGeometry(Part.BSplineCurve([V(-3.077709, 77.750651, 0), V(-3.077128, 77.775279, 0), V(-3.076003, 77.822935, 0), V(-3.066133, 77.891719, 0), V(-3.049931, 77.955083, 0), V(-3.027559, 78.013066, 0), V(-2.997176, 78.064518, 0), V(-2.963027, 78.112167, 0), V(-2.919828, 78.152665, 0), V(-2.887062, 78.174633, 0), V(-2.87046, 78.185764, 0)], [4, 1, 1, 1, 1, 1, 1, 1, 4], [0, 1.170016541, 2.263943595, 3.293731011, 4.273677885, 5.205400736, 6.126759273, 7.050839703, 8], False, 3, [1, 1, 1, 1, 1, 1, 1, 1, 1, 1, 1], False), False)  # 50
sketch2.addGeometry(Part.LineSegment(V(-3.077709, 77.750651, 0), V(-3.077709, 77.569444, 0)), False)  # 51
sketch2.addGeometry(Part.LineSegment(V(-2.901928, 78.958333, 0), V(1.465477, 78.958333, 0)), False)  # 52
sketch2.addGeometry(Part.BSplineCurve([V(1.575069, 79.735243, 0), V(1.573812, 79.676231, 0), V(1.571214, 79.554253, 0), V(1.548947, 79.365476, 0), V(1.514477, 79.165171, 0), V(1.482148, 79.028705, 0), V(1.465477, 78.958333, 0)], [4, 1, 1, 1, 4], [0, 0.900167399, 1.860653943, 2.896785853, 4], False, 3, [1, 1, 1, 1, 1, 1, 1], False), False)  # 53
sketch2.addGeometry(Part.BSplineCurve([V(-0.716598, 81.805556, 0), V(-0.63008, 81.804052, 0), V(-0.461298, 81.80112, 0), V(-0.215554, 81.773602, 0), V(0.016153, 81.728303, 0), V(0.233764, 81.664313, 0), V(0.437629, 81.58269, 0), V(0.628164, 81.484383, 0), V(0.802418, 81.364402, 0), V(0.963195, 81.229272, 0), V(1.106634, 81.07888, 0), V(1.232496, 80.917702, 0), V(1.338336, 80.745803, 0), V(1.426308, 80.564065, 0), V(1.491412, 80.370422, 0), V(1.541265, 80.168127, 0), V(1.569358, 79.954853, 0), V(1.573139, 79.809468, 0), V(1.575069, 79.735243, 0)], [4, 1, 1, 1, 1, 1, 1, 1, 1, 1, 1, 1, 1, 1, 1, 1, 4], [0, 1.193301075, 2.327941992, 3.40640339, 4.446943273, 5.452345616, 6.432197849, 7.398281103, 8.364982765, 9.32497675, 10.260257213, 11.181170077, 12.105200732, 13.039428948, 13.994364515, 14.976044785, 16], False, 3, [1, 1, 1, 1, 1, 1, 1, 1, 1, 1, 1, 1, 1, 1, 1, 1, 1, 1, 1], False), False)  # 54
sketch2.addGeometry(Part.BSplineCurve([V(-3.008264, 79.765625, 0), V(-3.006476, 79.837347, 0), V(-3.002956, 79.978514, 0), V(-2.97257, 80.185233, 0), V(-2.925226, 80.383181, 0), V(-2.857719, 80.571729, 0), V(-2.770447, 80.750787, 0), V(-2.663096, 80.920084, 0), V(-2.536571, 81.079708, 0), V(-2.392753, 81.229664, 0), V(-2.231249, 81.364436, 0), V(-2.056117, 81.484122, 0), V(-1.865681, 81.582478, 0), V(-1.662645, 81.664324, 0), V(-1.445774, 81.72846, 0), V(-1.21473, 81.773478, 0), V(-0.970094, 81.801104, 0), V(-0.802393, 81.804049, 0), V(-0.716598, 81.805556, 0)], [4, 1, 1, 1, 1, 1, 1, 1, 1, 1, 1, 1, 1, 1, 1, 1, 4], [0, 0.997895983, 1.964095595, 2.901912071, 3.827157005, 4.745844758, 5.669115072, 6.611891721, 7.576831244, 8.556021548, 9.534901163, 10.52350778, 11.533221663, 12.578230165, 13.66632696, 14.806101182, 16], False, 3, [1, 1, 1, 1, 1, 1, 1, 1, 1, 1, 1, 1, 1, 1, 1, 1, 1, 1, 1], False), False)  # 55
sketch2.addGeometry(Part.BSplineCurve([V(-2.901928, 78.958333, 0), V(-2.918324, 79.035222, 0), V(-2.949607, 79.181921, 0), V(-2.981153, 79.393973, 0), V(-3.004234, 79.586085, 0), V(-3.006972, 79.708058, 0), V(-3.008264, 79.765625, 0)], [4, 1, 1, 1, 4], [0, 1.156263879, 2.206090244, 3.153339526, 4], False, 3, [1, 1, 1, 1, 1, 1, 1], False), False)  # 56
sketch2.addConstraint([
    Sketcher.Constraint("Block", 2),
    Sketcher.Constraint("Block", 3),
    Sketcher.Constraint("Block", 4),
    Sketcher.Constraint("Block", 5),
    Sketcher.Constraint("Block", 6),
    Sketcher.Constraint("Block", 7),
    Sketcher.Constraint("Block", 8),
    Sketcher.Constraint("Block", 9),
    Sketcher.Constraint("Block", 11),
    Sketcher.Constraint("Block", 12),
    Sketcher.Constraint("Block", 13),
    Sketcher.Constraint("Block", 14),
    Sketcher.Constraint("Block", 18),
    Sketcher.Constraint("Block", 19),
    Sketcher.Constraint("Block", 23),
    Sketcher.Constraint("Block", 27),
    Sketcher.Constraint("Block", 28),
    Sketcher.Constraint("Block", 32),
    Sketcher.Constraint("Block", 33),
    Sketcher.Constraint("Block", 40),
    Sketcher.Constraint("Block", 41),
    Sketcher.Constraint("Block", 42),
    Sketcher.Constraint("Block", 46),
    Sketcher.Constraint("Block", 47),
    Sketcher.Constraint("Block", 49),
    Sketcher.Constraint("Block", 50),
    Sketcher.Constraint("Block", 53),
    Sketcher.Constraint("Block", 54),
    Sketcher.Constraint("Block", 55),
    Sketcher.Constraint("Block", 56),
    Sketcher.Constraint("Coincident", 0, 2, 1, 1),
    Sketcher.Constraint("Coincident", 1, 2, 2, 2),
    Sketcher.Constraint("Coincident", 9, 1, 10, 1),
    Sketcher.Constraint("Coincident", 10, 2, 11, 2),
    Sketcher.Constraint("Coincident", 14, 1, 15, 1),
    Sketcher.Constraint("Coincident", 15, 2, 0, 1),
    Sketcher.Constraint("Coincident", 16, 2, 17, 1),
    Sketcher.Constraint("Coincident", 17, 2, 18, 2),
    Sketcher.Constraint("Coincident", 19, 1, 20, 1),
    Sketcher.Constraint("Coincident", 20, 2, 21, 1),
    Sketcher.Constraint("Coincident", 21, 2, 22, 1),
    Sketcher.Constraint("Coincident", 22, 2, 23, 2),
    Sketcher.Constraint("Coincident", 23, 1, 24, 1),
    Sketcher.Constraint("Coincident", 24, 2, 25, 1),
    Sketcher.Constraint("Coincident", 25, 2, 26, 1),
    Sketcher.Constraint("Coincident", 26, 2, 27, 2),
    Sketcher.Constraint("Coincident", 28, 1, 29, 1),
    Sketcher.Constraint("Coincident", 29, 2, 30, 1),
    Sketcher.Constraint("Coincident", 30, 2, 31, 1),
    Sketcher.Constraint("Coincident", 31, 2, 32, 2),
    Sketcher.Constraint("Coincident", 33, 1, 34, 1),
    Sketcher.Constraint("Coincident", 34, 2, 16, 1),
    Sketcher.Constraint("Coincident", 38, 2, 39, 1),
    Sketcher.Constraint("Coincident", 39, 2, 40, 2),
    Sketcher.Constraint("Coincident", 42, 1, 43, 1),
    Sketcher.Constraint("Coincident", 43, 2, 44, 1),
    Sketcher.Constraint("Coincident", 44, 2, 45, 1),
    Sketcher.Constraint("Coincident", 45, 2, 46, 2),
    Sketcher.Constraint("Coincident", 47, 1, 48, 1),
    Sketcher.Constraint("Coincident", 48, 2, 49, 2),
    Sketcher.Constraint("Coincident", 50, 1, 51, 1),
    Sketcher.Constraint("Coincident", 51, 2, 38, 1),
    Sketcher.Constraint("Coincident", 52, 2, 53, 2),
    Sketcher.Constraint("Coincident", 56, 1, 52, 1),
    Sketcher.Constraint("Vertical", 1),
    Sketcher.Constraint("Vertical", 15),
    Sketcher.Constraint("Vertical", 16),
    Sketcher.Constraint("Horizontal", 20),
    Sketcher.Constraint("Vertical", 21),
    Sketcher.Constraint("Horizontal", 22),
    Sketcher.Constraint("Vertical", 25),
    Sketcher.Constraint("Horizontal", 29),
    Sketcher.Constraint("Vertical", 30),
    Sketcher.Constraint("Horizontal", 31),
    Sketcher.Constraint("Vertical", 35),
    Sketcher.Constraint("Horizontal", 38),
    Sketcher.Constraint("Vertical", 39),
    Sketcher.Constraint("Vertical", 43),
    Sketcher.Constraint("Horizontal", 44),
    Sketcher.Constraint("Vertical", 45),
    Sketcher.Constraint("Vertical", 51),
    Sketcher.Constraint("DistanceX", 20, 2, 10, 2, Q("1.25 mm")),
    Sketcher.Constraint("DistanceX", 29, 2, 10, 2, Q("1.25 mm")),
    Sketcher.Constraint("DistanceX", 30, 2, 35, 2, Q("1.875 mm")),
    Sketcher.Constraint("DistanceY", 1, 2, 1, 1, Q("0.138889 mm")),
    Sketcher.Constraint("DistanceY", 15, 1, 15, 2, Q("0.138889 mm")),
    Sketcher.Constraint("DistanceY", 25, 2, 25, 1, Q("0.136719 mm")),
    Sketcher.Constraint("DistanceY", 35, 2, 35, 1, Q("1.810981 mm")),
    Sketcher.Constraint("DistanceY", 39, 1, 39, 2, Q("2.249349 mm")),
    Sketcher.Constraint("DistanceY", 43, 2, 43, 1, Q("2.048611 mm")),
    Sketcher.Constraint("DistanceY", 16, 2, 21, 2, Q("1.896701 mm")),
    Sketcher.Constraint("DistanceY", 35, 2, 16, 2, Q("1.896701 mm")),
    Sketcher.Constraint("Distance", 37, Q("2.179772 mm")),
    Sketcher.Constraint("DistanceY", 16, 1, 16, 2, Q("1.993273 mm")),
    Sketcher.Constraint("DistanceX", 16, 2, -1, 1, Q("1.549931 mm")),
    Sketcher.Constraint("DistanceY", -1, 1, 24, 2, Q("74.903429 mm")),
    Sketcher.Constraint("DistanceX", -1, 1, 36, 2, Q("0.665781 mm")),
    Sketcher.Constraint("DistanceX", 15, 2, 24, 2, Q("1.736111 mm")),
])
pocket1 = doc.addObject("PartDesign::Pocket", "Pocket")
body.addObject(pocket1)
pocket1.Profile = sketch2
pocket1.Length = 1
pocket1.Reversed = True

doc.recompute()
